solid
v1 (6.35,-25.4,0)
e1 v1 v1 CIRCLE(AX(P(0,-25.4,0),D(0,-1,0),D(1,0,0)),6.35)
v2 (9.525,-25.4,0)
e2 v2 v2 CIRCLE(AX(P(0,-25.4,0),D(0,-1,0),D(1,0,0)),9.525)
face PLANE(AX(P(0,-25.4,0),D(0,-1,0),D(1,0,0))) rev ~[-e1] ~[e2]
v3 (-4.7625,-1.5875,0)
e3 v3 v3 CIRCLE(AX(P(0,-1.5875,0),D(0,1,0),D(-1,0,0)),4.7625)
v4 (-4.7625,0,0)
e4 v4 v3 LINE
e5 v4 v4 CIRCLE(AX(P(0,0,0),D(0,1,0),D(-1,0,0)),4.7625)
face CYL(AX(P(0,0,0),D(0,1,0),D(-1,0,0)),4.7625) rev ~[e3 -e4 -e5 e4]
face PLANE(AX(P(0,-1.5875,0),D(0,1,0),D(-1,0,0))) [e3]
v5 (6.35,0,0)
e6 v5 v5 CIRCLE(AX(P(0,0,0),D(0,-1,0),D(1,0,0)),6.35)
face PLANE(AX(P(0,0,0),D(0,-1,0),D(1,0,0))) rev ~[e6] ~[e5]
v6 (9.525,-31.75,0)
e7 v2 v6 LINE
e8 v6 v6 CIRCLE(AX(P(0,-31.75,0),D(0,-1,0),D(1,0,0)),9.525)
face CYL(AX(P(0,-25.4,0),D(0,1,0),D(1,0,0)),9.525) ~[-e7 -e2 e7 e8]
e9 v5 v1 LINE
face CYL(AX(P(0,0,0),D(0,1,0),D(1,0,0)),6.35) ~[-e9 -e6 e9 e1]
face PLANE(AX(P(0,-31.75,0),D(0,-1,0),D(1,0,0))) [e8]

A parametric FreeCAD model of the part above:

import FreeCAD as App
import Part
import Sketcher
from FreeCAD import Vector
Q = App.Units.Quantity

doc = App.newDocument("Part")
params = doc.addObject("Spreadsheet::Sheet", "Params")
for row, (alias, value) in enumerate([
    ("sketch1_diameter", "0.5 in"),
    ("pad1_length", "1 in"),
    ("sketch2_diameter", "0.375 in"),
    ("pocket1_length", "0.0625 in"),
    ("sketch3_diameter", "0.75 in"),
    ("pad2_length", "0.25 in"),
], start=1):
    params.set(f"A{row}", alias)
    params.set(f"B{row}", "=" + value)
    params.setAlias(f"B{row}", alias)

body = doc.addObject("PartDesign::Body", "Body")

# Sketch on XZ plane
sketch1 = doc.addObject("Sketcher::SketchObject", "Sketch")
body.addObject(sketch1)
sketch1.AttachmentSupport = (doc.XZ_Plane, [""])
sketch1.MapMode = "FlatFace"
sketch1.addGeometry(Part.Circle(Vector(0, 0, 0), Vector(0, 0, 1), 6), False)
sketch1.addConstraint([
    Sketcher.Constraint("Coincident", 0, 3, -1, 1),
    Sketcher.Constraint("Diameter", 0, Q("0.5 in")),
])
sketch1.setExpression("Constraints[1]", "Params.sketch1_diameter")
pad1 = doc.addObject("PartDesign::Pad", "Pad")
body.addObject(pad1)
pad1.Profile = sketch1
pad1.setExpression("Length", "Params.pad1_length")

# Sketch on XZ plane
sketch2 = doc.addObject("Sketcher::SketchObject", "Sketch001")
body.addObject(sketch2)
sketch2.AttachmentSupport = (doc.XZ_Plane, [""])
sketch2.MapMode = "FlatFace"
sketch2.addGeometry(Part.Circle(Vector(0, 0, 0), Vector(0, 0, 1), 4.8), False)
sketch2.addConstraint([
    Sketcher.Constraint("Coincident", 0, 3, -1, 1),
    Sketcher.Constraint("Diameter", 0, Q("0.375 in")),
])
sketch2.setExpression("Constraints[1]", "Params.sketch2_diameter")
pocket1 = doc.addObject("PartDesign::Pocket", "Pocket")
body.addObject(pocket1)
pocket1.Profile = sketch2
pocket1.setExpression("Length", "Params.pocket1_length")
pocket1.Reversed = True

# Sketch on XZ plane
sketch3 = doc.addObject("Sketcher::SketchObject", "Sketch002")
body.addObject(sketch3)
sketch3.AttachmentSupport = (doc.XZ_Plane, [""])
sketch3.MapMode = "FlatFace"
sketch3.AttachmentOffset = App.Placement(Vector(0, 0, 1 * 25.4), App.Rotation())
sketch3.addGeometry(Part.Circle(Vector(0, 0, 0), Vector(0, 0, 1), 10), False)
sketch3.addConstraint([
    Sketcher.Constraint("Coincident", 0, 3, -1, 1),
    Sketcher.Constraint("Diameter", 0, Q("0.75 in")),
])
sketch3.setExpression("Constraints[1]", "Params.sketch3_diameter")
pad2 = doc.addObject("PartDesign::Pad", "Pad001")
body.addObject(pad2)
pad2.Profile = sketch3
pad2.setExpression("Length", "Params.pad2_length")

doc.recompute()
